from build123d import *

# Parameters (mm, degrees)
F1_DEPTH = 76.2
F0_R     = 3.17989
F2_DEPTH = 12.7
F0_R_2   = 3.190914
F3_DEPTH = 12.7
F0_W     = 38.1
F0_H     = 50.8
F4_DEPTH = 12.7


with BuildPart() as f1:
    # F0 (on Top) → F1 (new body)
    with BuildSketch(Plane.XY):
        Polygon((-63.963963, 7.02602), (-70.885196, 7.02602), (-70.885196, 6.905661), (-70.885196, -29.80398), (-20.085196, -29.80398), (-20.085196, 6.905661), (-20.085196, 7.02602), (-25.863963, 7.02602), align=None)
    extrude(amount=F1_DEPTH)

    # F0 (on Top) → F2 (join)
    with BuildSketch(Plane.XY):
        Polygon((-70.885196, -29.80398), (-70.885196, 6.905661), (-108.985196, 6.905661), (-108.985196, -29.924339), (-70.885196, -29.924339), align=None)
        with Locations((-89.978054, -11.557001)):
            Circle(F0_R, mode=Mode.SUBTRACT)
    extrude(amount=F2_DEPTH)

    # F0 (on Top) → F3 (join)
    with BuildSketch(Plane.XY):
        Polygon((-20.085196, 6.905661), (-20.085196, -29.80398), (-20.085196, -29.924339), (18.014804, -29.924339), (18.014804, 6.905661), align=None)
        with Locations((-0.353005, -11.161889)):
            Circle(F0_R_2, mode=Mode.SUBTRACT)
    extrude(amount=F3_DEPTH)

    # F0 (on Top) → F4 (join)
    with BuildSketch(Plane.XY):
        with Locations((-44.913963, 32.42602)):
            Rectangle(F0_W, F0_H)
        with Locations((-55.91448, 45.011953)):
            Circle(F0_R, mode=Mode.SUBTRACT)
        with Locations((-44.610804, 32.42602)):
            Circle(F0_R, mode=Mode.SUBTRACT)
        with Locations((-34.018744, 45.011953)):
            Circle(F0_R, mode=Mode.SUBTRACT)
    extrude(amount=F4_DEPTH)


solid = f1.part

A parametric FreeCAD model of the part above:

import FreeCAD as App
import Part
import Sketcher
from FreeCAD import Vector
Q = App.Units.Quantity

doc = App.newDocument("Part")
body = doc.addObject("PartDesign::Body", "Body")

sketch1 = body.newObject("Sketcher::SketchObject", "Sketch")
sketch1.AttachmentSupport = (doc.getObject("XY_Plane"), [""])
sketch1.MapMode = "FlatFace"
sketch1.addGeometry([
    Part.LineSegment(Vector(-71, 7, 0), Vector(-71, -30, 0)),
    Part.LineSegment(Vector(-71, -30, 0), Vector(-20, -30, 0)),
    Part.LineSegment(Vector(-20, -30, 0), Vector(-20, 7, 0)),
    Part.LineSegment(Vector(-20, 7, 0), Vector(-71, 7, 0)),
], False)
sketch1.addConstraint([
    Sketcher.Constraint("Coincident", 0, 2, 1, 1),
    Sketcher.Constraint("Coincident", 1, 2, 2, 1),
    Sketcher.Constraint("Coincident", 2, 2, 3, 1),
    Sketcher.Constraint("Coincident", 3, 2, 0, 1),
    Sketcher.Constraint("Vertical", 0),
    Sketcher.Constraint("Horizontal", 1),
    Sketcher.Constraint("Vertical", 2),
    Sketcher.Constraint("Horizontal", 3),
    Sketcher.Constraint("DistanceX", 1, 1, 1, 2, Q("2 in")),
    Sketcher.Constraint("DistanceY", 0, 2, 0, 1, Q("1.45 in")),
    Sketcher.Constraint("DistanceY", 0, 2, -1, 1, Q("29.80398 mm")),
    Sketcher.Constraint("DistanceX", 0, 2, -1, 1, Q("70.885196 mm")),
])
pad1 = body.newObject("PartDesign::Pad", "Pad")
pad1.Profile = sketch1
pad1.Length = Q("3 in")

sketch2 = body.newObject("Sketcher::SketchObject", "Sketch001")
sketch2.AttachmentSupport = (doc.getObject("XY_Plane"), [""])
sketch2.MapMode = "FlatFace"
sketch2.addGeometry([
    Part.LineSegment(Vector(-70.9, 6.9, 0), Vector(-109, 6.9, 0)),
    Part.LineSegment(Vector(-109, 6.9, 0), Vector(-109, -29.9, 0)),
    Part.LineSegment(Vector(-109, -29.9, 0), Vector(-70.9, -29.9, 0)),
    Part.LineSegment(Vector(-70.9, -29.9, 0), Vector(-70.9, 6.9, 0)),
    Part.Circle(Vector(-90, -11.6, 0), Vector(0, 0, 1), 3.2),
], False)
sketch2.addConstraint([
    Sketcher.Constraint("Coincident", 0, 2, 1, 1),
    Sketcher.Constraint("Coincident", 1, 2, 2, 1),
    Sketcher.Constraint("Coincident", 2, 2, 3, 1),
    Sketcher.Constraint("Coincident", 3, 2, 0, 1),
    Sketcher.Constraint("Horizontal", 0),
    Sketcher.Constraint("Vertical", 1),
    Sketcher.Constraint("Horizontal", 2),
    Sketcher.Constraint("Vertical", 3),
    Sketcher.Constraint("DistanceX", 0, 2, 0, 1, Q("1.5 in")),
    Sketcher.Constraint("DistanceY", 1, 2, 1, 1, Q("1.45 in")),
    Sketcher.Constraint("Diameter", 4, Q("6.35978 mm")),
    Sketcher.Constraint("DistanceY", 4, 3, -1, 1, Q("0.455 in")),
    Sketcher.Constraint("DistanceY", -1, 1, 0, 2, Q("6.905661 mm")),
    Sketcher.Constraint("DistanceX", 4, 3, 2, 2, Q("19.092858 mm")),
    Sketcher.Constraint("DistanceX", 4, 3, -1, 1, Q("89.978054 mm")),
])
pad2 = body.newObject("PartDesign::Pad", "Pad001")
pad2.Profile = sketch2
pad2.Length = Q("0.5 in")

sketch3 = body.newObject("Sketcher::SketchObject", "Sketch002")
sketch3.AttachmentSupport = (doc.getObject("XY_Plane"), [""])
sketch3.MapMode = "FlatFace"
sketch3.addGeometry([
    Part.LineSegment(Vector(-20.1, 6.9, 0), Vector(-20.1, -29.9, 0)),
    Part.LineSegment(Vector(-20.1, -29.9, 0), Vector(18, -29.9, 0)),
    Part.LineSegment(Vector(18, -29.9, 0), Vector(18, 6.9, 0)),
    Part.LineSegment(Vector(18, 6.9, 0), Vector(-20.1, 6.9, 0)),
    Part.Circle(Vector(-0.4, -11.2, 0), Vector(0, 0, 1), 3.2),
], False)
sketch3.addConstraint([
    Sketcher.Constraint("Coincident", 0, 2, 1, 1),
    Sketcher.Constraint("Coincident", 1, 2, 2, 1),
    Sketcher.Constraint("Coincident", 2, 2, 3, 1),
    Sketcher.Constraint("Coincident", 3, 2, 0, 1),
    Sketcher.Constraint("Vertical", 0),
    Sketcher.Constraint("Horizontal", 1),
    Sketcher.Constraint("Vertical", 2),
    Sketcher.Constraint("Horizontal", 3),
    Sketcher.Constraint("DistanceX", 1, 1, 1, 2, Q("1.5 in")),
    Sketcher.Constraint("DistanceY", 0, 2, 0, 1, Q("1.45 in")),
    Sketcher.Constraint("Diameter", 4, Q("6.381828 mm")),
    Sketcher.Constraint("DistanceY", 4, 3, -1, 1, Q("11.161889 mm")),
    Sketcher.Constraint("DistanceY", 0, 2, -1, 1, Q("29.924339 mm")),
    Sketcher.Constraint("DistanceX", 0, 2, 4, 3, Q("19.732191 mm")),
    Sketcher.Constraint("DistanceX", 4, 3, -1, 1, Q("0.353005 mm")),
])
pad3 = body.newObject("PartDesign::Pad", "Pad002")
pad3.Profile = sketch3
pad3.Length = Q("0.5 in")

sketch4 = body.newObject("Sketcher::SketchObject", "Sketch003")
sketch4.AttachmentSupport = (doc.getObject("XY_Plane"), [""])
sketch4.MapMode = "FlatFace"
sketch4.addGeometry([
    Part.LineSegment(Vector(-64, 57.8, 0), Vector(-64, 7, 0)),
    Part.LineSegment(Vector(-64, 7, 0), Vector(-25.9, 7, 0)),
    Part.LineSegment(Vector(-25.9, 7, 0), Vector(-25.9, 57.8, 0)),
    Part.LineSegment(Vector(-25.9, 57.8, 0), Vector(-64, 57.8, 0)),
    Part.Circle(Vector(-44.6, 32.4, 0), Vector(0, 0, 1), 3.2),
    Part.Circle(Vector(-55.9, 45, 0), Vector(0, 0, 1), 3.2),
    Part.Circle(Vector(-34, 45, 0), Vector(0, 0, 1), 3.2),
], False)
sketch4.addConstraint([
    Sketcher.Constraint("Coincident", 0, 2, 1, 1),
    Sketcher.Constraint("Coincident", 1, 2, 2, 1),
    Sketcher.Constraint("Coincident", 2, 2, 3, 1),
    Sketcher.Constraint("Coincident", 3, 2, 0, 1),
    Sketcher.Constraint("Vertical", 0),
    Sketcher.Constraint("Horizontal", 1),
    Sketcher.Constraint("Vertical", 2),
    Sketcher.Constraint("Horizontal", 3),
    Sketcher.Constraint("Equal", 4, 5),
    Sketcher.Constraint("Equal", 5, 6),
    Sketcher.Constraint("Horizontal", 5, 3, 6, 3),
    Sketcher.Constraint("DistanceY", 0, 2, 0, 1, Q("2 in")),
    Sketcher.Constraint("DistanceX", 1, 1, 1, 2, Q("1.5 in")),
    Sketcher.Constraint("DistanceY", 0, 2, 4, 3, Q("1 in")),
    Sketcher.Constraint("Diameter", 4, Q("6.35978 mm")),
    Sketcher.Constraint("DistanceY", -1, 1, 4, 3, Q("32.42602 mm")),
    Sketcher.Constraint("DistanceX", 5, 3, -1, 1, Q("55.91448 mm")),
    Sketcher.Constraint("DistanceX", 4, 3, 6, 3, Q("10.59206 mm")),
    Sketcher.Constraint("DistanceX", 0, 2, 4, 3, Q("19.353159 mm")),
    Sketcher.Constraint("DistanceX", 4, 3, -1, 1, Q("44.610804 mm")),
    Sketcher.Constraint("DistanceY", -1, 1, 5, 3, Q("45.011953 mm")),
])
pad4 = body.newObject("PartDesign::Pad", "Pad003")
pad4.Profile = sketch4
pad4.Length = Q("0.5 in")

doc.recompute()
